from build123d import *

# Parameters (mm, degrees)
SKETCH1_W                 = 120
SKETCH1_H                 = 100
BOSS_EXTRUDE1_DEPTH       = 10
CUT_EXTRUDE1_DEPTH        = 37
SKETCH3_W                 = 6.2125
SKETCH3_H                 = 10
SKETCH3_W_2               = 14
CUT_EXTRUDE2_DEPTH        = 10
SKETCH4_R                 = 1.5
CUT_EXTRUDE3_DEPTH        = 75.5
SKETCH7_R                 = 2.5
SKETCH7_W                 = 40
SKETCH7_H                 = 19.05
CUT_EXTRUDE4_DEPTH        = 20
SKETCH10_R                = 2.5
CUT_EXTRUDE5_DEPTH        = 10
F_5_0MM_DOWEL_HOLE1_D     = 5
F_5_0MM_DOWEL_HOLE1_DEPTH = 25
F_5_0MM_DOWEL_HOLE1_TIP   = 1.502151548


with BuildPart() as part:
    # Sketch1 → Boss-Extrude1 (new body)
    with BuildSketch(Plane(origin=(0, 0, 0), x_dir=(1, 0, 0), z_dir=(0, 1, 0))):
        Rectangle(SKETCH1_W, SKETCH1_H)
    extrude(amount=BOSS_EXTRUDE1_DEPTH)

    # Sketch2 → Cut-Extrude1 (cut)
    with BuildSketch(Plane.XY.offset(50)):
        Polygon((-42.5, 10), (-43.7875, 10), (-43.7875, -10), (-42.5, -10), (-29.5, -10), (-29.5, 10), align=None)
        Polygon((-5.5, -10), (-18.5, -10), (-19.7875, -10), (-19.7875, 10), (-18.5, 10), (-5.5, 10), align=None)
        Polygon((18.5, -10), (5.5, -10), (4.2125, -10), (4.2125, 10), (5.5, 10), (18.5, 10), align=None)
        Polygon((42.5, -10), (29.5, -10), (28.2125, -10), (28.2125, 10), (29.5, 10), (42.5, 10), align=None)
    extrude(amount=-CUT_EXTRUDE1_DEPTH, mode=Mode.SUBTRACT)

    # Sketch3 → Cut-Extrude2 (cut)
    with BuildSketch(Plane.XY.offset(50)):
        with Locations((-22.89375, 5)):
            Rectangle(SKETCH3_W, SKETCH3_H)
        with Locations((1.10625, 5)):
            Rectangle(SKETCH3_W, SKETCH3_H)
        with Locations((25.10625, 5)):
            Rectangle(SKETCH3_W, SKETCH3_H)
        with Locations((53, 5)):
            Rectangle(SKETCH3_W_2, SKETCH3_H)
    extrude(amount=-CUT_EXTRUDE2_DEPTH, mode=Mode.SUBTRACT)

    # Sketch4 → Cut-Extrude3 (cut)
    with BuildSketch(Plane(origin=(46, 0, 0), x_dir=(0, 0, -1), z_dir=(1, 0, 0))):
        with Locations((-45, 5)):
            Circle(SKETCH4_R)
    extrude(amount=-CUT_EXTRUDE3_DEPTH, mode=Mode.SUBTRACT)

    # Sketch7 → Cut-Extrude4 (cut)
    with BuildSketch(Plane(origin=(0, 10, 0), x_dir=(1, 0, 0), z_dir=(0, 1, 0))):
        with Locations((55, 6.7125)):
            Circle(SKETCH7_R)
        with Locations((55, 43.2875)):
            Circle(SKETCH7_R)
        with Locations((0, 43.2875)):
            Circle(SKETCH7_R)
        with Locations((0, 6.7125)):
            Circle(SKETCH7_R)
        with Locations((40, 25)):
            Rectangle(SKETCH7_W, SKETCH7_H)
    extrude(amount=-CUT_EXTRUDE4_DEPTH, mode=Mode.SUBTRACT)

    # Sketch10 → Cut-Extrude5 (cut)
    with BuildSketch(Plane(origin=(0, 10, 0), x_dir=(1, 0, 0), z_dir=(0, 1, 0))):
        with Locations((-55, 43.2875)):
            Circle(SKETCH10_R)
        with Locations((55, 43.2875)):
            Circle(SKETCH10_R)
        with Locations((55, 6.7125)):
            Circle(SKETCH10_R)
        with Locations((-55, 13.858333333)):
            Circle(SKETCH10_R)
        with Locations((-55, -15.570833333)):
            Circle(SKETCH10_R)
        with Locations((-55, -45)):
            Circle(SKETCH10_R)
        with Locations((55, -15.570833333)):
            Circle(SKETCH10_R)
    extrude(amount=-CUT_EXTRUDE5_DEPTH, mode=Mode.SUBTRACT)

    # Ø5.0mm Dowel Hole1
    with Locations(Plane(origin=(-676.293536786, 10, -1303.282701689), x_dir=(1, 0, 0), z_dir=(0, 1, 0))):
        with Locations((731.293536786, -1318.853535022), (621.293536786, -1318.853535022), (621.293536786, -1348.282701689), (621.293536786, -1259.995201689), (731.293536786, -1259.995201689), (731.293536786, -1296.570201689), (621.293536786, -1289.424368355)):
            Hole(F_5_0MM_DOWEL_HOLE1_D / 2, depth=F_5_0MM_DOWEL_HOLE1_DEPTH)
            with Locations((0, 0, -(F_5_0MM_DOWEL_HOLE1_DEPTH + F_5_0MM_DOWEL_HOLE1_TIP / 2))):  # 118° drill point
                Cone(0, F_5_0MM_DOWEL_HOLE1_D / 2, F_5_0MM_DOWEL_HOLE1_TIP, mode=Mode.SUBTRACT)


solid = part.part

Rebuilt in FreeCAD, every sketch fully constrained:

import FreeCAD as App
import Part
import Sketcher
from FreeCAD import Vector
Q = App.Units.Quantity

doc = App.newDocument("Part")
params = doc.addObject("Spreadsheet::Sheet", "Params")
for row, (alias, value) in enumerate([
    ("sketch1_width", "120 mm"),
    ("sketch1_height", "100 mm"),
    ("pad1_length", "10 mm"),
    ("sketch2_height", "20 mm"),
    ("pocket1_length", "37 mm"),
    ("sketch3_width", "14 mm"),
    ("sketch3_height", "10 mm"),
    ("pocket2_length", "10 mm"),
    ("sketch4_diameter", "3 mm"),
    ("pocket3_length", "75.5 mm"),
    ("sketch5_diameter", "5 mm"),
    ("sketch5_width", "40 mm"),
    ("sketch5_height", "19.05 mm"),
    ("pocket4_length", "20 mm"),
    ("sketch6_diameter", "5 mm"),
    ("pocket5_length", "10 mm"),
    ("sketch7_diameter", "5 mm"),
    ("hole_diameter", "5 mm"),
    ("hole_depth", "25 mm"),
], start=1):
    params.set(f"A{row}", alias)
    params.set(f"B{row}", "=" + value)
    params.setAlias(f"B{row}", alias)

body = doc.addObject("PartDesign::Body", "Body")

# Sketch on XZ plane
sketch1 = body.newObject("Sketcher::SketchObject", "Sketch")
sketch1.AttachmentSupport = (doc.getObject("XZ_Plane"), [""])
sketch1.MapMode = "FlatFace"
sketch1.addGeometry(Part.LineSegment(Vector(-60, -50, 0), Vector(-60, 50, 0)), False)
sketch1.addGeometry(Part.LineSegment(Vector(-60, 50, 0), Vector(60, 50, 0)), False)
sketch1.addGeometry(Part.LineSegment(Vector(60, 50, 0), Vector(60, -50, 0)), False)
sketch1.addGeometry(Part.LineSegment(Vector(60, -50, 0), Vector(-60, -50, 0)), False)
sketch1.addConstraint(Sketcher.Constraint("Coincident", 0, 2, 1, 1))
sketch1.addConstraint(Sketcher.Constraint("Coincident", 1, 2, 2, 1))
sketch1.addConstraint(Sketcher.Constraint("Coincident", 2, 2, 3, 1))
sketch1.addConstraint(Sketcher.Constraint("Coincident", 3, 2, 0, 1))
sketch1.addConstraint(Sketcher.Constraint("Vertical", 0))
sketch1.addConstraint(Sketcher.Constraint("Horizontal", 1))
sketch1.addConstraint(Sketcher.Constraint("Vertical", 2))
sketch1.addConstraint(Sketcher.Constraint("Horizontal", 3))
sketch1.addConstraint(Sketcher.Constraint("Symmetric", 0, 2, 2, 2, -1, 1))
sketch1.addConstraint(Sketcher.Constraint("DistanceX", 1, 1, 1, 2, Q("120 mm")))
sketch1.addConstraint(Sketcher.Constraint("DistanceY", 0, 1, 0, 2, Q("100 mm")))
sketch1.setExpression("Constraints[9]", "Params.sketch1_width")
sketch1.setExpression("Constraints[10]", "Params.sketch1_height")
pad1 = body.newObject("PartDesign::Pad", "Pad")
pad1.Profile = sketch1
pad1.setExpression("Length", "Params.pad1_length")
pad1.Reversed = True

# Sketch on XY plane
sketch2 = body.newObject("Sketcher::SketchObject", "Sketch001")
sketch2.AttachmentSupport = (doc.getObject("XY_Plane"), [""])
sketch2.MapMode = "FlatFace"
sketch2.AttachmentOffset = App.Placement(Vector(0, 0, 50), App.Rotation())
sketch2.addGeometry(Part.LineSegment(Vector(-44, 10, 0), Vector(-44, -10, 0)), False)
sketch2.addGeometry(Part.LineSegment(Vector(-44, -10, 0), Vector(-30, -10, 0)), False)
sketch2.addGeometry(Part.LineSegment(Vector(-30, -10, 0), Vector(-30, 10, 0)), False)
sketch2.addGeometry(Part.LineSegment(Vector(-30, 10, 0), Vector(-44, 10, 0)), False)
sketch2.addGeometry(Part.LineSegment(Vector(-20, -10, 0), Vector(-6, -10, 0)), False)
sketch2.addGeometry(Part.LineSegment(Vector(-6, -10, 0), Vector(-6, 10, 0)), False)
sketch2.addGeometry(Part.LineSegment(Vector(-6, 10, 0), Vector(-20, 10, 0)), False)
sketch2.addGeometry(Part.LineSegment(Vector(-20, 10, 0), Vector(-20, -10, 0)), False)
sketch2.addGeometry(Part.LineSegment(Vector(4, -10, 0), Vector(18, -10, 0)), False)
sketch2.addGeometry(Part.LineSegment(Vector(18, -10, 0), Vector(18, 10, 0)), False)
sketch2.addGeometry(Part.LineSegment(Vector(18, 10, 0), Vector(4, 10, 0)), False)
sketch2.addGeometry(Part.LineSegment(Vector(4, 10, 0), Vector(4, -10, 0)), False)
sketch2.addGeometry(Part.LineSegment(Vector(28, -10, 0), Vector(42, -10, 0)), False)
sketch2.addGeometry(Part.LineSegment(Vector(42, -10, 0), Vector(42, 10, 0)), False)
sketch2.addGeometry(Part.LineSegment(Vector(42, 10, 0), Vector(28, 10, 0)), False)
sketch2.addGeometry(Part.LineSegment(Vector(28, 10, 0), Vector(28, -10, 0)), False)
sketch2.addConstraint(Sketcher.Constraint("Coincident", 0, 2, 1, 1))
sketch2.addConstraint(Sketcher.Constraint("Coincident", 1, 2, 2, 1))
sketch2.addConstraint(Sketcher.Constraint("Coincident", 2, 2, 3, 1))
sketch2.addConstraint(Sketcher.Constraint("Coincident", 3, 2, 0, 1))
sketch2.addConstraint(Sketcher.Constraint("Coincident", 4, 2, 5, 1))
sketch2.addConstraint(Sketcher.Constraint("Coincident", 5, 2, 6, 1))
sketch2.addConstraint(Sketcher.Constraint("Coincident", 6, 2, 7, 1))
sketch2.addConstraint(Sketcher.Constraint("Coincident", 7, 2, 4, 1))
sketch2.addConstraint(Sketcher.Constraint("Coincident", 8, 2, 9, 1))
sketch2.addConstraint(Sketcher.Constraint("Coincident", 9, 2, 10, 1))
sketch2.addConstraint(Sketcher.Constraint("Coincident", 10, 2, 11, 1))
sketch2.addConstraint(Sketcher.Constraint("Coincident", 11, 2, 8, 1))
sketch2.addConstraint(Sketcher.Constraint("Coincident", 12, 2, 13, 1))
sketch2.addConstraint(Sketcher.Constraint("Coincident", 13, 2, 14, 1))
sketch2.addConstraint(Sketcher.Constraint("Coincident", 14, 2, 15, 1))
sketch2.addConstraint(Sketcher.Constraint("Coincident", 15, 2, 12, 1))
sketch2.addConstraint(Sketcher.Constraint("Vertical", 0))
sketch2.addConstraint(Sketcher.Constraint("Horizontal", 1))
sketch2.addConstraint(Sketcher.Constraint("Vertical", 2))
sketch2.addConstraint(Sketcher.Constraint("Horizontal", 3))
sketch2.addConstraint(Sketcher.Constraint("Horizontal", 4))
sketch2.addConstraint(Sketcher.Constraint("Vertical", 5))
sketch2.addConstraint(Sketcher.Constraint("Horizontal", 6))
sketch2.addConstraint(Sketcher.Constraint("Vertical", 7))
sketch2.addConstraint(Sketcher.Constraint("Horizontal", 8))
sketch2.addConstraint(Sketcher.Constraint("Vertical", 9))
sketch2.addConstraint(Sketcher.Constraint("Horizontal", 10))
sketch2.addConstraint(Sketcher.Constraint("Vertical", 11))
sketch2.addConstraint(Sketcher.Constraint("Horizontal", 12))
sketch2.addConstraint(Sketcher.Constraint("Vertical", 13))
sketch2.addConstraint(Sketcher.Constraint("Horizontal", 14))
sketch2.addConstraint(Sketcher.Constraint("Vertical", 15))
sketch2.addConstraint(Sketcher.Constraint("Horizontal", 1, 2, 4, 2))
sketch2.addConstraint(Sketcher.Constraint("Horizontal", 3, 2, 5, 2))
sketch2.addConstraint(Sketcher.Constraint("Horizontal", 7, 2, 8, 2))
sketch2.addConstraint(Sketcher.Constraint("Horizontal", 6, 2, 9, 2))
sketch2.addConstraint(Sketcher.Constraint("Horizontal", 11, 2, 12, 2))
sketch2.addConstraint(Sketcher.Constraint("Horizontal", 10, 2, 13, 2))
sketch2.addConstraint(Sketcher.Constraint("Equal", 3, 4))
sketch2.addConstraint(Sketcher.Constraint("Equal", 6, 8))
sketch2.addConstraint(Sketcher.Constraint("Equal", 10, 12))
sketch2.addConstraint(Sketcher.Constraint("DistanceY", 0, 2, 0, 1, Q("20 mm")))
sketch2.addConstraint(Sketcher.Constraint("DistanceY", 0, 2, -1, 1, Q("10 mm")))
sketch2.addConstraint(Sketcher.Constraint("DistanceX", 1, 2, 4, 2, Q("24 mm")))
sketch2.addConstraint(Sketcher.Constraint("DistanceX", 4, 2, 8, 2, Q("24 mm")))
sketch2.addConstraint(Sketcher.Constraint("DistanceX", 8, 2, 12, 2, Q("24 mm")))
sketch2.addConstraint(Sketcher.Constraint("DistanceX", 1, 2, -1, 1, Q("29.5 mm")))
sketch2.addConstraint(Sketcher.Constraint("DistanceX", 1, 1, 1, 2, Q("14.2875 mm")))
sketch2.setExpression("Constraints[41]", "Params.sketch2_height")
pocket1 = body.newObject("PartDesign::Pocket", "Pocket")
pocket1.Profile = sketch2
pocket1.setExpression("Length", "Params.pocket1_length")

# Sketch on XY plane
sketch3 = body.newObject("Sketcher::SketchObject", "Sketch002")
sketch3.AttachmentSupport = (doc.getObject("XY_Plane"), [""])
sketch3.MapMode = "FlatFace"
sketch3.AttachmentOffset = App.Placement(Vector(0, 0, 50), App.Rotation())
sketch3.addGeometry(Part.LineSegment(Vector(-26, 10, 0), Vector(-26, 0, 0)), False)
sketch3.addGeometry(Part.LineSegment(Vector(-26, 0, 0), Vector(-20, 0, 0)), False)
sketch3.addGeometry(Part.LineSegment(Vector(-20, 0, 0), Vector(-20, 10, 0)), False)
sketch3.addGeometry(Part.LineSegment(Vector(-20, 10, 0), Vector(-26, 10, 0)), False)
sketch3.addGeometry(Part.LineSegment(Vector(-2, 10, 0), Vector(-2, 0, 0)), False)
sketch3.addGeometry(Part.LineSegment(Vector(-2, 0, 0), Vector(4, 0, 0)), False)
sketch3.addGeometry(Part.LineSegment(Vector(4, 0, 0), Vector(4, 10, 0)), False)
sketch3.addGeometry(Part.LineSegment(Vector(4, 10, 0), Vector(-2, 10, 0)), False)
sketch3.addGeometry(Part.LineSegment(Vector(22, 10, 0), Vector(22, 0, 0)), False)
sketch3.addGeometry(Part.LineSegment(Vector(22, 0, 0), Vector(28, 0, 0)), False)
sketch3.addGeometry(Part.LineSegment(Vector(28, 0, 0), Vector(28, 10, 0)), False)
sketch3.addGeometry(Part.LineSegment(Vector(28, 10, 0), Vector(22, 10, 0)), False)
sketch3.addGeometry(Part.LineSegment(Vector(46, 10, 0), Vector(46, 0, 0)), False)
sketch3.addGeometry(Part.LineSegment(Vector(46, 0, 0), Vector(60, 0, 0)), False)
sketch3.addGeometry(Part.LineSegment(Vector(60, 0, 0), Vector(60, 10, 0)), False)
sketch3.addGeometry(Part.LineSegment(Vector(60, 10, 0), Vector(46, 10, 0)), False)
sketch3.addConstraint(Sketcher.Constraint("Coincident", 0, 2, 1, 1))
sketch3.addConstraint(Sketcher.Constraint("Coincident", 1, 2, 2, 1))
sketch3.addConstraint(Sketcher.Constraint("Coincident", 2, 2, 3, 1))
sketch3.addConstraint(Sketcher.Constraint("Coincident", 3, 2, 0, 1))
sketch3.addConstraint(Sketcher.Constraint("Coincident", 4, 2, 5, 1))
sketch3.addConstraint(Sketcher.Constraint("Coincident", 5, 2, 6, 1))
sketch3.addConstraint(Sketcher.Constraint("Coincident", 6, 2, 7, 1))
sketch3.addConstraint(Sketcher.Constraint("Coincident", 7, 2, 4, 1))
sketch3.addConstraint(Sketcher.Constraint("Coincident", 8, 2, 9, 1))
sketch3.addConstraint(Sketcher.Constraint("Coincident", 9, 2, 10, 1))
sketch3.addConstraint(Sketcher.Constraint("Coincident", 10, 2, 11, 1))
sketch3.addConstraint(Sketcher.Constraint("Coincident", 11, 2, 8, 1))
sketch3.addConstraint(Sketcher.Constraint("Coincident", 12, 2, 13, 1))
sketch3.addConstraint(Sketcher.Constraint("Coincident", 13, 2, 14, 1))
sketch3.addConstraint(Sketcher.Constraint("Coincident", 14, 2, 15, 1))
sketch3.addConstraint(Sketcher.Constraint("Coincident", 15, 2, 12, 1))
sketch3.addConstraint(Sketcher.Constraint("Vertical", 0))
sketch3.addConstraint(Sketcher.Constraint("Horizontal", 1))
sketch3.addConstraint(Sketcher.Constraint("Vertical", 2))
sketch3.addConstraint(Sketcher.Constraint("Horizontal", 3))
sketch3.addConstraint(Sketcher.Constraint("Vertical", 4))
sketch3.addConstraint(Sketcher.Constraint("Horizontal", 5))
sketch3.addConstraint(Sketcher.Constraint("Vertical", 6))
sketch3.addConstraint(Sketcher.Constraint("Horizontal", 7))
sketch3.addConstraint(Sketcher.Constraint("Vertical", 8))
sketch3.addConstraint(Sketcher.Constraint("Horizontal", 9))
sketch3.addConstraint(Sketcher.Constraint("Vertical", 10))
sketch3.addConstraint(Sketcher.Constraint("Horizontal", 11))
sketch3.addConstraint(Sketcher.Constraint("Vertical", 12))
sketch3.addConstraint(Sketcher.Constraint("Horizontal", 13))
sketch3.addConstraint(Sketcher.Constraint("Vertical", 14))
sketch3.addConstraint(Sketcher.Constraint("Horizontal", 15))
sketch3.addConstraint(Sketcher.Constraint("PointOnObject", 0, 2, -1))
sketch3.addConstraint(Sketcher.Constraint("PointOnObject", 4, 2, -1))
sketch3.addConstraint(Sketcher.Constraint("PointOnObject", 8, 2, -1))
sketch3.addConstraint(Sketcher.Constraint("PointOnObject", 12, 2, -1))
sketch3.addConstraint(Sketcher.Constraint("Horizontal", 3, 2, 6, 2))
sketch3.addConstraint(Sketcher.Constraint("Horizontal", 7, 2, 10, 2))
sketch3.addConstraint(Sketcher.Constraint("Horizontal", 11, 2, 14, 2))
sketch3.addConstraint(Sketcher.Constraint("Equal", 3, 5))
sketch3.addConstraint(Sketcher.Constraint("Equal", 7, 9))
sketch3.addConstraint(Sketcher.Constraint("DistanceX", 13, 1, 13, 2, Q("14 mm")))
sketch3.addConstraint(Sketcher.Constraint("DistanceY", 0, 2, 0, 1, Q("10 mm")))
sketch3.addConstraint(Sketcher.Constraint("DistanceX", 0, 2, -1, 1, Q("26 mm")))
sketch3.addConstraint(Sketcher.Constraint("DistanceX", 4, 2, -1, 1, Q("2 mm")))
sketch3.addConstraint(Sketcher.Constraint("DistanceX", -1, 1, 8, 2, Q("22 mm")))
sketch3.addConstraint(Sketcher.Constraint("DistanceX", -1, 1, 12, 2, Q("46 mm")))
sketch3.addConstraint(Sketcher.Constraint("DistanceX", 1, 1, 1, 2, Q("6.2125 mm")))
sketch3.setExpression("Constraints[41]", "Params.sketch3_width")
sketch3.setExpression("Constraints[42]", "Params.sketch3_height")
pocket2 = body.newObject("PartDesign::Pocket", "Pocket001")
pocket2.Profile = sketch3
pocket2.setExpression("Length", "Params.pocket2_length")

# Sketch on YZ plane
sketch4 = body.newObject("Sketcher::SketchObject", "Sketch003")
sketch4.AttachmentSupport = (doc.getObject("YZ_Plane"), [""])
sketch4.MapMode = "FlatFace"
sketch4.AttachmentOffset = App.Placement(Vector(0, 0, 46), App.Rotation())
sketch4.addGeometry(Part.Circle(Vector(5, 45, 0), Vector(0, 0, 1), 1.5), False)
sketch4.addConstraint(Sketcher.Constraint("Diameter", 0, Q("3 mm")))
sketch4.addConstraint(Sketcher.Constraint("DistanceX", -1, 1, 0, 3, Q("5 mm")))
sketch4.addConstraint(Sketcher.Constraint("DistanceY", -1, 1, 0, 3, Q("45 mm")))
sketch4.setExpression("Constraints[0]", "Params.sketch4_diameter")
pocket3 = body.newObject("PartDesign::Pocket", "Pocket002")
pocket3.Profile = sketch4
pocket3.setExpression("Length", "Params.pocket3_length")

# Sketch on XZ plane
sketch5 = body.newObject("Sketcher::SketchObject", "Sketch004")
sketch5.AttachmentSupport = (doc.getObject("XZ_Plane"), [""])
sketch5.MapMode = "FlatFace"
sketch5.AttachmentOffset = App.Placement(Vector(0, 0, -10), App.Rotation())
sketch5.addGeometry(Part.Circle(Vector(55, -6.7, 0), Vector(0, 0, 1), 2.5), False)
sketch5.addGeometry(Part.Circle(Vector(55, -43.3, 0), Vector(0, 0, 1), 2.5), False)
sketch5.addGeometry(Part.Circle(Vector(0, -43.3, 0), Vector(0, 0, 1), 2.5), False)
sketch5.addGeometry(Part.Circle(Vector(0, -6.7, 0), Vector(0, 0, 1), 2.5), False)
sketch5.addGeometry(Part.LineSegment(Vector(20, -34.5, 0), Vector(20, -15.5, 0)), False)
sketch5.addGeometry(Part.LineSegment(Vector(20, -15.5, 0), Vector(60, -15.5, 0)), False)
sketch5.addGeometry(Part.LineSegment(Vector(60, -15.5, 0), Vector(60, -34.5, 0)), False)
sketch5.addGeometry(Part.LineSegment(Vector(60, -34.5, 0), Vector(20, -34.5, 0)), False)
sketch5.addConstraint(Sketcher.Constraint("Coincident", 4, 2, 5, 1))
sketch5.addConstraint(Sketcher.Constraint("Coincident", 5, 2, 6, 1))
sketch5.addConstraint(Sketcher.Constraint("Coincident", 6, 2, 7, 1))
sketch5.addConstraint(Sketcher.Constraint("Coincident", 7, 2, 4, 1))
sketch5.addConstraint(Sketcher.Constraint("Vertical", 4))
sketch5.addConstraint(Sketcher.Constraint("Horizontal", 5))
sketch5.addConstraint(Sketcher.Constraint("Vertical", 6))
sketch5.addConstraint(Sketcher.Constraint("Horizontal", 7))
sketch5.addConstraint(Sketcher.Constraint("Equal", 0, 1))
sketch5.addConstraint(Sketcher.Constraint("Equal", 1, 2))
sketch5.addConstraint(Sketcher.Constraint("Equal", 2, 3))
sketch5.addConstraint(Sketcher.Constraint("PointOnObject", 2, 3, -2))
sketch5.addConstraint(Sketcher.Constraint("PointOnObject", 3, 3, -2))
sketch5.addConstraint(Sketcher.Constraint("Horizontal", 1, 3, 2, 3))
sketch5.addConstraint(Sketcher.Constraint("Horizontal", 0, 3, 3, 3))
sketch5.addConstraint(Sketcher.Constraint("Vertical", 0, 3, 1, 3))
sketch5.addConstraint(Sketcher.Constraint("Diameter", 0, Q("5 mm")))
sketch5.addConstraint(Sketcher.Constraint("DistanceX", 5, 1, 5, 2, Q("40 mm")))
sketch5.addConstraint(Sketcher.Constraint("DistanceX", -1, 1, 0, 3, Q("55 mm")))
sketch5.addConstraint(Sketcher.Constraint("DistanceX", -1, 1, 4, 2, Q("20 mm")))
sketch5.addConstraint(Sketcher.Constraint("DistanceY", 4, 1, 4, 2, Q("19.05 mm")))
sketch5.addConstraint(Sketcher.Constraint("DistanceY", 4, 2, -1, 1, Q("15.475 mm")))
sketch5.addConstraint(Sketcher.Constraint("DistanceY", 1, 3, 0, 3, Q("36.575 mm")))
sketch5.addConstraint(Sketcher.Constraint("DistanceY", 0, 3, -1, 1, Q("6.7125 mm")))
sketch5.setExpression("Constraints[16]", "Params.sketch5_diameter")
sketch5.setExpression("Constraints[17]", "Params.sketch5_width")
sketch5.setExpression("Constraints[20]", "Params.sketch5_height")
pocket4 = body.newObject("PartDesign::Pocket", "Pocket003")
pocket4.Profile = sketch5
pocket4.setExpression("Length", "Params.pocket4_length")
pocket4.Reversed = True

# Sketch on XZ plane
sketch6 = body.newObject("Sketcher::SketchObject", "Sketch005")
sketch6.AttachmentSupport = (doc.getObject("XZ_Plane"), [""])
sketch6.MapMode = "FlatFace"
sketch6.AttachmentOffset = App.Placement(Vector(0, 0, -10), App.Rotation())
sketch6.addGeometry(Part.Circle(Vector(-55, -43.3, 0), Vector(0, 0, 1), 2.5), False)
sketch6.addGeometry(Part.Circle(Vector(55, -43.3, 0), Vector(0, 0, 1), 2.5), False)
sketch6.addGeometry(Part.Circle(Vector(55, -6.7, 0), Vector(0, 0, 1), 2.5), False)
sketch6.addGeometry(Part.Circle(Vector(-55, -13.9, 0), Vector(0, 0, 1), 2.5), False)
sketch6.addGeometry(Part.Circle(Vector(-55, 15.6, 0), Vector(0, 0, 1), 2.5), False)
sketch6.addGeometry(Part.Circle(Vector(-55, 45, 0), Vector(0, 0, 1), 2.5), False)
sketch6.addGeometry(Part.Circle(Vector(55, 15.6, 0), Vector(0, 0, 1), 2.5), False)
sketch6.addConstraint(Sketcher.Constraint("Equal", 0, 1))
sketch6.addConstraint(Sketcher.Constraint("Equal", 1, 2))
sketch6.addConstraint(Sketcher.Constraint("Equal", 2, 3))
sketch6.addConstraint(Sketcher.Constraint("Equal", 3, 4))
sketch6.addConstraint(Sketcher.Constraint("Equal", 4, 5))
sketch6.addConstraint(Sketcher.Constraint("Equal", 5, 6))
sketch6.addConstraint(Sketcher.Constraint("Symmetric", 0, 3, 1, 3, -2))
sketch6.addConstraint(Sketcher.Constraint("Symmetric", 4, 3, 6, 3, -2))
sketch6.addConstraint(Sketcher.Constraint("Vertical", 1, 3, 2, 3))
sketch6.addConstraint(Sketcher.Constraint("Vertical", 0, 3, 3, 3))
sketch6.addConstraint(Sketcher.Constraint("Vertical", 3, 3, 4, 3))
sketch6.addConstraint(Sketcher.Constraint("Vertical", 4, 3, 5, 3))
sketch6.addConstraint(Sketcher.Constraint("Diameter", 0, Q("5 mm")))
sketch6.addConstraint(Sketcher.Constraint("DistanceX", 0, 3, -1, 1, Q("55 mm")))
sketch6.addConstraint(Sketcher.Constraint("DistanceY", -1, 1, 5, 3, Q("45 mm")))
sketch6.addConstraint(Sketcher.Constraint("DistanceY", 1, 3, 2, 3, Q("36.575 mm")))
sketch6.addConstraint(Sketcher.Constraint("DistanceY", 0, 3, -1, 1, Q("43.2875 mm")))
sketch6.addConstraint(Sketcher.Constraint("DistanceY", 3, 3, -1, 1, Q("13.858333 mm")))
sketch6.addConstraint(Sketcher.Constraint("DistanceY", -1, 1, 4, 3, Q("15.570833 mm")))
sketch6.setExpression("Constraints[12]", "Params.sketch6_diameter")
pocket5 = body.newObject("PartDesign::Pocket", "Pocket004")
pocket5.Profile = sketch6
pocket5.setExpression("Length", "Params.pocket5_length")
pocket5.Reversed = True

# Sketch on XZ plane
sketch7 = body.newObject("Sketcher::SketchObject", "Sketch006")
sketch7.AttachmentSupport = (doc.getObject("XZ_Plane"), [""])
sketch7.MapMode = "FlatFace"
sketch7.AttachmentOffset = App.Placement(Vector(0, 0, -10), App.Rotation())
sketch7.addGeometry(Part.Circle(Vector(55, 15.6, 0), Vector(0, 0, 1), 2.5), False)
sketch7.addGeometry(Part.Circle(Vector(-55, 15.6, 0), Vector(0, 0, 1), 2.5), False)
sketch7.addGeometry(Part.Circle(Vector(-55, 45, 0), Vector(0, 0, 1), 2.5), False)
sketch7.addGeometry(Part.Circle(Vector(-55, -43.3, 0), Vector(0, 0, 1), 2.5), False)
sketch7.addGeometry(Part.Circle(Vector(55, -43.3, 0), Vector(0, 0, 1), 2.5), False)
sketch7.addGeometry(Part.Circle(Vector(55, -6.7, 0), Vector(0, 0, 1), 2.5), False)
sketch7.addGeometry(Part.Circle(Vector(-55, -13.9, 0), Vector(0, 0, 1), 2.5), False)
sketch7.addConstraint(Sketcher.Constraint("Equal", 0, 1))
sketch7.addConstraint(Sketcher.Constraint("Equal", 1, 2))
sketch7.addConstraint(Sketcher.Constraint("Equal", 2, 3))
sketch7.addConstraint(Sketcher.Constraint("Equal", 3, 4))
sketch7.addConstraint(Sketcher.Constraint("Equal", 4, 5))
sketch7.addConstraint(Sketcher.Constraint("Equal", 5, 6))
sketch7.addConstraint(Sketcher.Constraint("Symmetric", 0, 3, 1, 3, -2))
sketch7.addConstraint(Sketcher.Constraint("Symmetric", 3, 3, 4, 3, -2))
sketch7.addConstraint(Sketcher.Constraint("Vertical", 1, 3, 2, 3))
sketch7.addConstraint(Sketcher.Constraint("Vertical", 2, 3, 3, 3))
sketch7.addConstraint(Sketcher.Constraint("Vertical", 4, 3, 5, 3))
sketch7.addConstraint(Sketcher.Constraint("Vertical", 3, 3, 6, 3))
sketch7.addConstraint(Sketcher.Constraint("Diameter", 0, Q("5 mm")))
sketch7.addConstraint(Sketcher.Constraint("DistanceX", -1, 1, 0, 3, Q("55 mm")))
sketch7.addConstraint(Sketcher.Constraint("DistanceY", -1, 1, 2, 3, Q("45 mm")))
sketch7.addConstraint(Sketcher.Constraint("DistanceY", 4, 3, 5, 3, Q("36.575 mm")))
sketch7.addConstraint(Sketcher.Constraint("DistanceY", 3, 3, -1, 1, Q("43.2875 mm")))
sketch7.addConstraint(Sketcher.Constraint("DistanceY", -1, 1, 0, 3, Q("15.570833 mm")))
sketch7.addConstraint(Sketcher.Constraint("DistanceY", 6, 3, -1, 1, Q("13.858333 mm")))
sketch7.setExpression("Constraints[12]", "Params.sketch7_diameter")
doc.recompute()
hole = body.newObject("PartDesign::Hole", "Hole")
hole.Profile = sketch7
hole.ThreadType = "None"
hole.setExpression("Diameter", "Params.hole_diameter")
hole.DepthType = "Dimension"
hole.setExpression("Depth", "Params.hole_depth")
hole.DrillPoint = "Angled"
hole.DrillPointAngle = 118
hole.Reversed = True

doc.recompute()
